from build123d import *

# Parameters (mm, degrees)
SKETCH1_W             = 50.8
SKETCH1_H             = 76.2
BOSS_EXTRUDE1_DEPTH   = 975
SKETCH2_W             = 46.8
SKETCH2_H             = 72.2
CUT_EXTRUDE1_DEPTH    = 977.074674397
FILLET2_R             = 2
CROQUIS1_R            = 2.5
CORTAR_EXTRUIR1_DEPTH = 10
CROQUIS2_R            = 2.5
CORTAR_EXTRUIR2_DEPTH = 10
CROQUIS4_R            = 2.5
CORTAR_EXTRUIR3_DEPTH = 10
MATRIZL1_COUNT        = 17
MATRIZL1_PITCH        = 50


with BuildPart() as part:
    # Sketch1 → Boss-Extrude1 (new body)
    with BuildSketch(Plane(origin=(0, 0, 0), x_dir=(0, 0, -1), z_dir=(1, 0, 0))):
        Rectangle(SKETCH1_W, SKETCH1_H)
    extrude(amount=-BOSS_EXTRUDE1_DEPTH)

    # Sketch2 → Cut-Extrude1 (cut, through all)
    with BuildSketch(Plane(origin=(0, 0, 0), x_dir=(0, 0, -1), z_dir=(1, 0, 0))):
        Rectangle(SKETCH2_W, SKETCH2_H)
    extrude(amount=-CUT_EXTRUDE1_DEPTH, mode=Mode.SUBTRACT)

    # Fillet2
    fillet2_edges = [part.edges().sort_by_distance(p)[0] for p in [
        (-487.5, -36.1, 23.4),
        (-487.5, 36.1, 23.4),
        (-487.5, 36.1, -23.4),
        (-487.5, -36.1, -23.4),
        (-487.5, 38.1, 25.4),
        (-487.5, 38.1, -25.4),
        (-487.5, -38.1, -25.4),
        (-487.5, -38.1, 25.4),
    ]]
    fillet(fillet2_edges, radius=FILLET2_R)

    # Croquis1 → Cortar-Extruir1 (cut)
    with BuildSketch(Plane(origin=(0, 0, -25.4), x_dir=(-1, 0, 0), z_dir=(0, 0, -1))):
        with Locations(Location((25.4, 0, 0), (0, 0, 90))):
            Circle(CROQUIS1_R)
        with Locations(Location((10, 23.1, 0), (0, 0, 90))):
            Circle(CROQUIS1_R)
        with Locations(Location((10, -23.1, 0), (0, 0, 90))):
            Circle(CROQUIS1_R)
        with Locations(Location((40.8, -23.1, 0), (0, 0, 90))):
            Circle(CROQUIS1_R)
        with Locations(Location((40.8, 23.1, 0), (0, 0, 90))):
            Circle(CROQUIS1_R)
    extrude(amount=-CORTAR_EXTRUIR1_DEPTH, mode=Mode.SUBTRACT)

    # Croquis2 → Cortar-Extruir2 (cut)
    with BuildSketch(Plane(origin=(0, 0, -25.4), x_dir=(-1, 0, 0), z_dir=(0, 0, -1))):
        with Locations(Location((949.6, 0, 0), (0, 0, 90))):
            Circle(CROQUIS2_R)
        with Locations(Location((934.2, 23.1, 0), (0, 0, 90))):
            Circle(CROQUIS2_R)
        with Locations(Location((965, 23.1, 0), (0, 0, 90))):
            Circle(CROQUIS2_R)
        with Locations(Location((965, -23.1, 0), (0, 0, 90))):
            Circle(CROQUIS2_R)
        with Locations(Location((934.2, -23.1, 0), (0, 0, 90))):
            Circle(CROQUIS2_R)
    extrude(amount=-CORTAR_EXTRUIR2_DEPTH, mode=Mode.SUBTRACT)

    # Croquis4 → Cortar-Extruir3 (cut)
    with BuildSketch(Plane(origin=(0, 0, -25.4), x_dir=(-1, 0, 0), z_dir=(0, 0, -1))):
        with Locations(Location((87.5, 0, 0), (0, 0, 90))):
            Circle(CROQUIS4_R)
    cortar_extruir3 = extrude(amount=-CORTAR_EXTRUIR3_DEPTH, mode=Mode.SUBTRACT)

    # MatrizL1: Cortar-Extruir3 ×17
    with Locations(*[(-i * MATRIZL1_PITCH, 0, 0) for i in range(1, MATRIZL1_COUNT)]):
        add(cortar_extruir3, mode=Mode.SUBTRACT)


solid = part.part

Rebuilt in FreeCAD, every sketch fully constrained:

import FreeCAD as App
import Part
import Sketcher

V = App.Vector
Q = App.Units.Quantity


def edges_at(feature, points):
    """Names of the edges that pass closest to the given points."""
    edges = feature.Shape.Edges
    near = lambda p: min(range(len(edges)), key=lambda i: edges[i].distToShape(Part.Vertex(*p))[0])
    return sorted({f"Edge{near(p) + 1}" for p in points})


def add_polygon(sketch, points):
    """Adds a closed chain of lines whose ends are joined by coincident constraints."""
    first, n = sketch.GeometryCount, len(points)
    for a, b in zip(points, points[1:] + points[:1]):
        sketch.addGeometry(Part.LineSegment(App.Vector(*a, 0), App.Vector(*b, 0)), False)
    for i in range(n):
        sketch.addConstraint(Sketcher.Constraint("Coincident", first + i, 2, first + (i + 1) % n, 1))

doc = App.newDocument("Part")
body = doc.addObject("PartDesign::Body", "Body")

# Sketch on YZ plane
sketch1 = doc.addObject("Sketcher::SketchObject", "Sketch")
body.addObject(sketch1)
sketch1.AttachmentSupport = (doc.YZ_Plane, [""])
sketch1.MapMode = "FlatFace"
add_polygon(sketch1, [(38, 25), (-38, 25), (-38, -25), (38, -25)])  # lines 0-3
sketch1.addConstraint(Sketcher.Constraint("Horizontal", 0))
sketch1.addConstraint(Sketcher.Constraint("Vertical", 1))
sketch1.addConstraint(Sketcher.Constraint("Horizontal", 2))
sketch1.addConstraint(Sketcher.Constraint("Vertical", 3))
sketch1.addConstraint(Sketcher.Constraint("Symmetric", 0, 2, 2, 2, -1, 1))
sketch1.addConstraint(Sketcher.Constraint("DistanceX", 0, 2, 0, 1, Q("76.2 mm")))
sketch1.addConstraint(Sketcher.Constraint("DistanceY", 1, 2, 1, 1, Q("50.8 mm")))
pad1 = doc.addObject("PartDesign::Pad", "Pad")
body.addObject(pad1)
pad1.Profile = sketch1
pad1.Length = 975
pad1.Reversed = True

# Sketch on YZ plane
sketch2 = doc.addObject("Sketcher::SketchObject", "Sketch001")
body.addObject(sketch2)
sketch2.AttachmentSupport = (doc.YZ_Plane, [""])
sketch2.MapMode = "FlatFace"
add_polygon(sketch2, [(36, 23), (-36, 23), (-36, -23), (36, -23)])  # lines 0-3
sketch2.addConstraint(Sketcher.Constraint("Horizontal", 0))
sketch2.addConstraint(Sketcher.Constraint("Vertical", 1))
sketch2.addConstraint(Sketcher.Constraint("Horizontal", 2))
sketch2.addConstraint(Sketcher.Constraint("Vertical", 3))
sketch2.addConstraint(Sketcher.Constraint("Symmetric", 0, 2, 2, 2, -1, 1))
sketch2.addConstraint(Sketcher.Constraint("DistanceX", 0, 2, 0, 1, Q("72.2 mm")))
sketch2.addConstraint(Sketcher.Constraint("DistanceY", 1, 2, 1, 1, Q("46.8 mm")))
pocket1 = doc.addObject("PartDesign::Pocket", "Pocket")
body.addObject(pocket1)
pocket1.Profile = sketch2
pocket1.Type = "ThroughAll"
doc.recompute()

fillet = doc.addObject("PartDesign::Fillet", "Fillet")
body.addObject(fillet)
fillet.Base = (pocket1, edges_at(pocket1, [
    (-487.5, -36.1, 23.4),
    (-487.5, 36.1, 23.4),
    (-487.5, 36.1, -23.4),
    (-487.5, -36.1, -23.4),
    (-487.5, 38.1, 25.4),
    (-487.5, 38.1, -25.4),
    (-487.5, -38.1, -25.4),
    (-487.5, -38.1, 25.4),
]))
fillet.Radius = 2

# Sketch on XY plane
sketch3 = doc.addObject("Sketcher::SketchObject", "Sketch002")
body.addObject(sketch3)
sketch3.AttachmentSupport = (doc.XY_Plane, [""])
sketch3.MapMode = "FlatFace"
sketch3.AttachmentOffset = App.Placement(V(0, 0, -25.4), App.Rotation())
sketch3.addGeometry(Part.Circle(V(-25.4, 0, 0), V(0, 0, 1), 2.5), False)
sketch3.addGeometry(Part.Circle(V(-10, 23.1, 0), V(0, 0, 1), 2.5), False)
sketch3.addGeometry(Part.Circle(V(-10, -23.1, 0), V(0, 0, 1), 2.5), False)
sketch3.addGeometry(Part.Circle(V(-40.8, -23.1, 0), V(0, 0, 1), 2.5), False)
sketch3.addGeometry(Part.Circle(V(-40.8, 23.1, 0), V(0, 0, 1), 2.5), False)
sketch3.addConstraint(Sketcher.Constraint("Equal", 0, 1))
sketch3.addConstraint(Sketcher.Constraint("Equal", 1, 2))
sketch3.addConstraint(Sketcher.Constraint("Equal", 2, 3))
sketch3.addConstraint(Sketcher.Constraint("Equal", 3, 4))
sketch3.addConstraint(Sketcher.Constraint("Symmetric", 1, 3, 2, 3, -1))
sketch3.addConstraint(Sketcher.Constraint("Symmetric", 3, 3, 4, 3, -1))
sketch3.addConstraint(Sketcher.Constraint("PointOnObject", 0, 3, -1))
sketch3.addConstraint(Sketcher.Constraint("Horizontal", 2, 3, 3, 3))
sketch3.addConstraint(Sketcher.Constraint("Diameter", 0, Q("5 mm")))
sketch3.addConstraint(Sketcher.Constraint("DistanceX", 1, 3, -1, 1, Q("10 mm")))
sketch3.addConstraint(Sketcher.Constraint("DistanceX", 0, 3, -1, 1, Q("25.4 mm")))
sketch3.addConstraint(Sketcher.Constraint("DistanceY", -1, 1, 1, 3, Q("23.1 mm")))
sketch3.addConstraint(Sketcher.Constraint("DistanceX", 3, 3, -1, 1, Q("40.8 mm")))
pocket2 = doc.addObject("PartDesign::Pocket", "Pocket001")
body.addObject(pocket2)
pocket2.Profile = sketch3
pocket2.Length = 10
pocket2.Reversed = True

# Sketch on XY plane
sketch4 = doc.addObject("Sketcher::SketchObject", "Sketch003")
body.addObject(sketch4)
sketch4.AttachmentSupport = (doc.XY_Plane, [""])
sketch4.MapMode = "FlatFace"
sketch4.AttachmentOffset = App.Placement(V(0, 0, -25.4), App.Rotation())
sketch4.addGeometry(Part.Circle(V(-949.6, 0, 0), V(0, 0, 1), 2.5), False)
sketch4.addGeometry(Part.Circle(V(-934.2, 23.1, 0), V(0, 0, 1), 2.5), False)
sketch4.addGeometry(Part.Circle(V(-965, 23.1, 0), V(0, 0, 1), 2.5), False)
sketch4.addGeometry(Part.Circle(V(-965, -23.1, 0), V(0, 0, 1), 2.5), False)
sketch4.addGeometry(Part.Circle(V(-934.2, -23.1, 0), V(0, 0, 1), 2.5), False)
sketch4.addConstraint(Sketcher.Constraint("Equal", 0, 1))
sketch4.addConstraint(Sketcher.Constraint("Equal", 1, 2))
sketch4.addConstraint(Sketcher.Constraint("Equal", 2, 3))
sketch4.addConstraint(Sketcher.Constraint("Equal", 3, 4))
sketch4.addConstraint(Sketcher.Constraint("Symmetric", 2, 3, 3, 3, -1))
sketch4.addConstraint(Sketcher.Constraint("Symmetric", 1, 3, 4, 3, -1))
sketch4.addConstraint(Sketcher.Constraint("PointOnObject", 0, 3, -1))
sketch4.addConstraint(Sketcher.Constraint("Horizontal", 1, 3, 2, 3))
sketch4.addConstraint(Sketcher.Constraint("Diameter", 0, Q("5 mm")))
sketch4.addConstraint(Sketcher.Constraint("DistanceX", 2, 3, -1, 1, Q("965 mm")))
sketch4.addConstraint(Sketcher.Constraint("DistanceX", 0, 3, -1, 1, Q("949.6 mm")))
sketch4.addConstraint(Sketcher.Constraint("DistanceX", 1, 3, -1, 1, Q("934.2 mm")))
sketch4.addConstraint(Sketcher.Constraint("DistanceY", -1, 1, 1, 3, Q("23.1 mm")))
pocket3 = doc.addObject("PartDesign::Pocket", "Pocket002")
body.addObject(pocket3)
pocket3.Profile = sketch4
pocket3.Length = 10
pocket3.Reversed = True

# Sketch on XY plane
sketch5 = doc.addObject("Sketcher::SketchObject", "Sketch004")
body.addObject(sketch5)
sketch5.AttachmentSupport = (doc.XY_Plane, [""])
sketch5.MapMode = "FlatFace"
sketch5.AttachmentOffset = App.Placement(V(0, 0, -25.4), App.Rotation())
sketch5.addGeometry(Part.Circle(V(-87.5, 0, 0), V(0, 0, 1), 2.5), False)
sketch5.addConstraint(Sketcher.Constraint("PointOnObject", 0, 3, -1))
sketch5.addConstraint(Sketcher.Constraint("Diameter", 0, Q("5 mm")))
sketch5.addConstraint(Sketcher.Constraint("DistanceX", 0, 3, -1, 1, Q("87.5 mm")))
pocket4 = doc.addObject("PartDesign::Pocket", "Pocket003")
body.addObject(pocket4)
pocket4.Profile = sketch5
pocket4.Length = 10
pocket4.Reversed = True
doc.recompute()

linearpattern = doc.addObject("PartDesign::LinearPattern", "LinearPattern")
body.addObject(linearpattern)
linearpattern.Originals = [pocket4]
linearpattern.Direction = (doc.X_Axis, [""])
linearpattern.Mode = "offset"
linearpattern.Offset = 50
linearpattern.Occurrences = 17
linearpattern.Reversed = True
body.Tip = linearpattern

doc.recompute()
